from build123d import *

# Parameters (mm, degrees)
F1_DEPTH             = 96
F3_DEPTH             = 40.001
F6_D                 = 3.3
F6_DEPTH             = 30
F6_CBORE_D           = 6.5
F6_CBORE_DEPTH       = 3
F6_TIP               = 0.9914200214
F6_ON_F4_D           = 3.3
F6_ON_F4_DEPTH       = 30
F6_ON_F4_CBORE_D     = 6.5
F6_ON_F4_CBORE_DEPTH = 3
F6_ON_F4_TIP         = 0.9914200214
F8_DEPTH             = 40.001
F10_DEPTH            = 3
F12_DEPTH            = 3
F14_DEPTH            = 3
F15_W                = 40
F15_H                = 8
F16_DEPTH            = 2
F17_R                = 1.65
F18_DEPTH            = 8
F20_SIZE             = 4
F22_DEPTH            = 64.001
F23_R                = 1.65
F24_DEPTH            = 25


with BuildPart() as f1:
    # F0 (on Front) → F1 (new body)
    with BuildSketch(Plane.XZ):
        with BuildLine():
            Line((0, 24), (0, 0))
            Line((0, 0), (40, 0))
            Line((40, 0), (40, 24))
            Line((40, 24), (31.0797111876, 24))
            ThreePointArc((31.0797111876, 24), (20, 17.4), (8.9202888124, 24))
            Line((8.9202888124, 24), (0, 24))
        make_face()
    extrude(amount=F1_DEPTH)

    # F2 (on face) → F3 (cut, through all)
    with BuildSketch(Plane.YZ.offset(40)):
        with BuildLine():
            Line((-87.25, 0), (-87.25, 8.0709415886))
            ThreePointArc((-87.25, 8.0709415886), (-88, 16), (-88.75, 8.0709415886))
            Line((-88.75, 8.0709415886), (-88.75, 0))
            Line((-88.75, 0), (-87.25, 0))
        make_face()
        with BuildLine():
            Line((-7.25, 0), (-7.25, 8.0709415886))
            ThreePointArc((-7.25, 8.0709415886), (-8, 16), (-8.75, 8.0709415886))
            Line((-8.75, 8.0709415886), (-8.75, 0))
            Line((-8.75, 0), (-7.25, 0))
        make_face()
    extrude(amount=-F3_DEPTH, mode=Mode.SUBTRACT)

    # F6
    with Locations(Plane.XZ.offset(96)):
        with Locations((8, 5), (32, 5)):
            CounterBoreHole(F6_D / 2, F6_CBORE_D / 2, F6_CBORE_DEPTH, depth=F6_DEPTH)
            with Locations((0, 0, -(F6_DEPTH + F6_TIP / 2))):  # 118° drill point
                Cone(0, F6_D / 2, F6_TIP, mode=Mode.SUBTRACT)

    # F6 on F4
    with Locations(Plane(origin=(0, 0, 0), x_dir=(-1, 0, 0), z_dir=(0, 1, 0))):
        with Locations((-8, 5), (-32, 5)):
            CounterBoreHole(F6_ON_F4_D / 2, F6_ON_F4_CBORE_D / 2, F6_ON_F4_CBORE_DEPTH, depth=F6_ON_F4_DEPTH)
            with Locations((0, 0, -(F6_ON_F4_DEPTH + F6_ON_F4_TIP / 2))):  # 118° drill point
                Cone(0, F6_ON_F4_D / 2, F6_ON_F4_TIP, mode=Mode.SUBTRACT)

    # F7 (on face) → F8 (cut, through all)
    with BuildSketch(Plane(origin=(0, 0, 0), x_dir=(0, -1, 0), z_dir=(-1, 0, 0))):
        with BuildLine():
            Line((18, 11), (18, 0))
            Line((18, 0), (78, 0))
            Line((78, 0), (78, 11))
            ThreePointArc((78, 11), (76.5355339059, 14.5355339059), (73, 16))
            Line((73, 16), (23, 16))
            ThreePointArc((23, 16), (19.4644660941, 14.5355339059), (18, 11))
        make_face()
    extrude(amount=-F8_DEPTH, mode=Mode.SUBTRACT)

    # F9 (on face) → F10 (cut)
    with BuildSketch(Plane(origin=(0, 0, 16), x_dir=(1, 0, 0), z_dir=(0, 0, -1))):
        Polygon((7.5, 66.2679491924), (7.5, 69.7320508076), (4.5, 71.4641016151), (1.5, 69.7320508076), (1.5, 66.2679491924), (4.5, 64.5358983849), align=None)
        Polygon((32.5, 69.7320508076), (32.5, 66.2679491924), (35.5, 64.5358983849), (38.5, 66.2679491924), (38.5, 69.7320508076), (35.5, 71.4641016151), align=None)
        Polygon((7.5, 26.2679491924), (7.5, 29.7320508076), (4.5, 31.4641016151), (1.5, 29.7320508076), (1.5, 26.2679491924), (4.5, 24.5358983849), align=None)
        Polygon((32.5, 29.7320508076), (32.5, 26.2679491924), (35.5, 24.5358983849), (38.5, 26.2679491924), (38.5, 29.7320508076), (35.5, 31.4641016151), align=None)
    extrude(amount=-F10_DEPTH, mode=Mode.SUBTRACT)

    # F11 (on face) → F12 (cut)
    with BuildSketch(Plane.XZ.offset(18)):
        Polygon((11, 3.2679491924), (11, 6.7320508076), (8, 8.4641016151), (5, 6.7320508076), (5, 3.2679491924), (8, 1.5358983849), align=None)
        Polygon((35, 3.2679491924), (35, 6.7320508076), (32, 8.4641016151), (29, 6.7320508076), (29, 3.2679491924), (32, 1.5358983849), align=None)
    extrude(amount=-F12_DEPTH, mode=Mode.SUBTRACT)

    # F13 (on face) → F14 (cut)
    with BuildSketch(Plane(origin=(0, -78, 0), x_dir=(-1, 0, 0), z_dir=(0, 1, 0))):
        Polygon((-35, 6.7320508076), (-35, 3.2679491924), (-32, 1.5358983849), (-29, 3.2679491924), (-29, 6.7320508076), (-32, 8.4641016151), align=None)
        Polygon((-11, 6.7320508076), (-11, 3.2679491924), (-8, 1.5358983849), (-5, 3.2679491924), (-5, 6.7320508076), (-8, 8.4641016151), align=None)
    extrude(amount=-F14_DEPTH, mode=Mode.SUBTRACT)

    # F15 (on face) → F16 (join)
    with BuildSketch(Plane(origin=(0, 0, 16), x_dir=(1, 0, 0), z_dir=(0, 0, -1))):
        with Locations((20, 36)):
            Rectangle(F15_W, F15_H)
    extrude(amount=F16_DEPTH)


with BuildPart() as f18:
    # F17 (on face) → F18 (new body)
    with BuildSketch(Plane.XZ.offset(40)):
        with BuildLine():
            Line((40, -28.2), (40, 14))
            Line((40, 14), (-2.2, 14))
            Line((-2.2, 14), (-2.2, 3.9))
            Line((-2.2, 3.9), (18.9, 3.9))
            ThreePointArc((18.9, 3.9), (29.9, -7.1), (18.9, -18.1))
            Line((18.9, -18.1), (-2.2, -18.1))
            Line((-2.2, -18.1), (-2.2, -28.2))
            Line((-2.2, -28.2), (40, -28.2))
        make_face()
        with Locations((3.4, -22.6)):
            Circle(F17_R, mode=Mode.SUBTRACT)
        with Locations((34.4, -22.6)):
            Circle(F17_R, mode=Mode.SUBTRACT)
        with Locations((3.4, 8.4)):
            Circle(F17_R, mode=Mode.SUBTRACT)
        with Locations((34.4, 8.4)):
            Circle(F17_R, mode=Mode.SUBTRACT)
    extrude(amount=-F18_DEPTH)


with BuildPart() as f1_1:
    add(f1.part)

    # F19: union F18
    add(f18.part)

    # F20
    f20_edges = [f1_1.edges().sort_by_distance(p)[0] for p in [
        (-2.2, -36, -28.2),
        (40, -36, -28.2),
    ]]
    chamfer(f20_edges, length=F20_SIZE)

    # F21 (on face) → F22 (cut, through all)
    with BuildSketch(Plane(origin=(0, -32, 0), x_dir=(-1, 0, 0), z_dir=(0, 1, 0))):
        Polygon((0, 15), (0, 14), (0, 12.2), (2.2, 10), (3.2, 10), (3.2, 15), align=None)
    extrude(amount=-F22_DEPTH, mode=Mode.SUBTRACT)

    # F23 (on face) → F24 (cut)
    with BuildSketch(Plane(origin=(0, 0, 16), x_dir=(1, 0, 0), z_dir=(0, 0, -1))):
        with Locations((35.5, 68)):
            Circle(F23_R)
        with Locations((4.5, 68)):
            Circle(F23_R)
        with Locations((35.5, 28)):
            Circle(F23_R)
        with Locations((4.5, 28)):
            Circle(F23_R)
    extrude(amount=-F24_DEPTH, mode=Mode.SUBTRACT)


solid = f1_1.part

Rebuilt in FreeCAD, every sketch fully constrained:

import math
import FreeCAD as App
import Part
import Sketcher
from FreeCAD import Vector
Q = App.Units.Quantity


def edges_at(feature, points):
    """Names of the edges that pass closest to the given points."""
    edges = feature.Shape.Edges
    near = lambda p: min(range(len(edges)), key=lambda i: edges[i].distToShape(Part.Vertex(*p))[0])
    return sorted({f"Edge{near(p) + 1}" for p in points})


def add_polygon(sketch, points):
    """Adds a closed chain of lines whose ends are joined by coincident constraints."""
    first, n = sketch.GeometryCount, len(points)
    for a, b in zip(points, points[1:] + points[:1]):
        sketch.addGeometry(Part.LineSegment(App.Vector(*a, 0), App.Vector(*b, 0)), False)
    for i in range(n):
        sketch.addConstraint(Sketcher.Constraint("Coincident", first + i, 2, first + (i + 1) % n, 1))

doc = App.newDocument("Part")
params = doc.addObject("Spreadsheet::Sheet", "Params")
for row, (alias, value) in enumerate([
    ("sketch1_radius", "12.6 mm"),
    ("sketch1_width", "40 mm"),
    ("sketch1_height", "24 mm"),
    ("pad1_length", "96 mm"),
    ("sketch2_radius", "4 mm"),
    ("sketch2_width", "1.5 mm"),
    ("sketch3_diameter", "3.3 mm"),
    ("hole_diameter", "3.3 mm"),
    ("hole_depth", "30 mm"),
    ("hole_cbore_diameter", "6.5 mm"),
    ("hole_cbore_depth", "3 mm"),
    ("sketch4_diameter", "3.3 mm"),
    ("hole2_diameter", "3.3 mm"),
    ("hole2_depth", "30 mm"),
    ("hole2_cbore_diameter", "6.5 mm"),
    ("hole2_cbore_depth", "3 mm"),
    ("sketch5_radius", "5 mm"),
    ("sketch5_width", "60 mm"),
    ("sketch5_height", "11 mm"),
    ("pocket3_length", "3 mm"),
    ("pocket4_length", "3 mm"),
    ("pocket5_length", "3 mm"),
    ("sketch9_width", "40 mm"),
    ("sketch9_height", "8 mm"),
    ("pad2_length", "2 mm"),
    ("sketch10_radius", "11 mm"),
    ("sketch10_diameter", "3.3 mm"),
    ("sketch10_width", "42.2 mm"),
    ("sketch10_width2", "21.1 mm"),
    ("pad3_length", "8 mm"),
    ("chamfer_size", "4 mm"),
    ("sketch11_width", "1 mm"),
    ("sketch11_height", "5 mm"),
    ("sketch11_width2", "3.2 mm"),
    ("sketch12_diameter", "3.3 mm"),
    ("pocket7_length", "25 mm"),
], start=1):
    params.set(f"A{row}", alias)
    params.set(f"B{row}", "=" + value)
    params.setAlias(f"B{row}", alias)

body = doc.addObject("PartDesign::Body", "Body")

# Sketch on XZ plane
sketch1 = body.newObject("Sketcher::SketchObject", "Sketch")
sketch1.AttachmentSupport = (doc.getObject("XZ_Plane"), [""])
sketch1.MapMode = "FlatFace"
sketch1.addGeometry(Part.LineSegment(Vector(0, 24, 0), Vector(0, 0, 0)), False)
sketch1.addGeometry(Part.LineSegment(Vector(0, 0, 0), Vector(40, 0, 0)), False)
sketch1.addGeometry(Part.LineSegment(Vector(40, 0, 0), Vector(40, 24, 0)), False)
sketch1.addGeometry(Part.LineSegment(Vector(40, 24, 0), Vector(31, 24, 0)), False)
sketch1.addGeometry(Part.ArcOfCircle(Part.Circle(Vector(20, 30, 0), Vector(0, 0, 1), 13), math.radians(-152), math.radians(-28)), False)
sketch1.addGeometry(Part.LineSegment(Vector(9, 24, 0), Vector(0, 24, 0)), False)
sketch1.addConstraint(Sketcher.Constraint("Coincident", 0, 2, 1, 1))
sketch1.addConstraint(Sketcher.Constraint("Coincident", 1, 2, 2, 1))
sketch1.addConstraint(Sketcher.Constraint("Coincident", 2, 2, 3, 1))
sketch1.addConstraint(Sketcher.Constraint("Coincident", 3, 2, 4, 2))
sketch1.addConstraint(Sketcher.Constraint("Coincident", 4, 1, 5, 1))
sketch1.addConstraint(Sketcher.Constraint("Coincident", 5, 2, 0, 1))
sketch1.addConstraint(Sketcher.Constraint("Vertical", 0))
sketch1.addConstraint(Sketcher.Constraint("Horizontal", 1))
sketch1.addConstraint(Sketcher.Constraint("Vertical", 2))
sketch1.addConstraint(Sketcher.Constraint("Horizontal", 3))
sketch1.addConstraint(Sketcher.Constraint("Horizontal", 5))
sketch1.addConstraint(Sketcher.Constraint("Coincident", 0, 2, -1, 1))
sketch1.addConstraint(Sketcher.Constraint("Horizontal", 3, 2, 4, 1))
sketch1.addConstraint(Sketcher.Constraint("Equal", 3, 5))
sketch1.addConstraint(Sketcher.Constraint("Radius", 4, Q("12.6 mm")))
sketch1.addConstraint(Sketcher.Constraint("DistanceX", 1, 1, 1, 2, Q("40 mm")))
sketch1.addConstraint(Sketcher.Constraint("DistanceY", 0, 2, 0, 1, Q("24 mm")))
sketch1.addConstraint(Sketcher.Constraint("DistanceY", -1, 1, 4, 3, Q("30 mm")))
sketch1.setExpression("Constraints[14]", "Params.sketch1_radius")
sketch1.setExpression("Constraints[15]", "Params.sketch1_width")
sketch1.setExpression("Constraints[16]", "Params.sketch1_height")
pad1 = body.newObject("PartDesign::Pad", "Pad")
pad1.Profile = sketch1
pad1.setExpression("Length", "Params.pad1_length")

# Sketch on YZ plane
sketch2 = body.newObject("Sketcher::SketchObject", "Sketch001")
sketch2.AttachmentSupport = (doc.getObject("YZ_Plane"), [""])
sketch2.MapMode = "FlatFace"
sketch2.AttachmentOffset = App.Placement(Vector(0, 0, 40), App.Rotation())
sketch2.addGeometry(Part.LineSegment(Vector(-87.2, 0, 0), Vector(-87.2, 8.1, 0)), False)
sketch2.addGeometry(Part.ArcOfCircle(Part.Circle(Vector(-88, 12, 0), Vector(0, 0, 1), 4), math.radians(-79), math.radians(259)), False)
sketch2.addGeometry(Part.LineSegment(Vector(-88.8, 8.1, 0), Vector(-88.8, 0, 0)), False)
sketch2.addGeometry(Part.LineSegment(Vector(-88.8, 0, 0), Vector(-87.2, 0, 0)), False)
sketch2.addGeometry(Part.LineSegment(Vector(-7.2, 0, 0), Vector(-7.2, 8.1, 0)), False)
sketch2.addGeometry(Part.ArcOfCircle(Part.Circle(Vector(-8, 12, 0), Vector(0, 0, 1), 4), math.radians(-79), math.radians(259)), False)
sketch2.addGeometry(Part.LineSegment(Vector(-8.8, 8.1, 0), Vector(-8.8, 0, 0)), False)
sketch2.addGeometry(Part.LineSegment(Vector(-8.8, 0, 0), Vector(-7.2, 0, 0)), False)
sketch2.addConstraint(Sketcher.Constraint("Coincident", 0, 2, 1, 1))
sketch2.addConstraint(Sketcher.Constraint("Coincident", 1, 2, 2, 1))
sketch2.addConstraint(Sketcher.Constraint("Coincident", 2, 2, 3, 1))
sketch2.addConstraint(Sketcher.Constraint("Coincident", 3, 2, 0, 1))
sketch2.addConstraint(Sketcher.Constraint("Coincident", 4, 2, 5, 1))
sketch2.addConstraint(Sketcher.Constraint("Coincident", 5, 2, 6, 1))
sketch2.addConstraint(Sketcher.Constraint("Coincident", 6, 2, 7, 1))
sketch2.addConstraint(Sketcher.Constraint("Coincident", 7, 2, 4, 1))
sketch2.addConstraint(Sketcher.Constraint("Vertical", 0))
sketch2.addConstraint(Sketcher.Constraint("Vertical", 2))
sketch2.addConstraint(Sketcher.Constraint("Horizontal", 3))
sketch2.addConstraint(Sketcher.Constraint("Vertical", 4))
sketch2.addConstraint(Sketcher.Constraint("Vertical", 6))
sketch2.addConstraint(Sketcher.Constraint("Horizontal", 7))
sketch2.addConstraint(Sketcher.Constraint("Equal", 1, 5))
sketch2.addConstraint(Sketcher.Constraint("PointOnObject", 2, 2, -1))
sketch2.addConstraint(Sketcher.Constraint("PointOnObject", 6, 2, -1))
sketch2.addConstraint(Sketcher.Constraint("Horizontal", 1, 3, 5, 3))
sketch2.addConstraint(Sketcher.Constraint("Horizontal", 0, 2, 1, 2))
sketch2.addConstraint(Sketcher.Constraint("Horizontal", 1, 2, 4, 2))
sketch2.addConstraint(Sketcher.Constraint("Horizontal", 4, 2, 5, 2))
sketch2.addConstraint(Sketcher.Constraint("Radius", 1, Q("4 mm")))
sketch2.addConstraint(Sketcher.Constraint("DistanceX", 3, 1, 3, 2, Q("1.5 mm")))
sketch2.addConstraint(Sketcher.Constraint("DistanceX", 1, 3, -1, 1, Q("88 mm")))
sketch2.addConstraint(Sketcher.Constraint("DistanceY", -1, 1, 1, 3, Q("12 mm")))
sketch2.addConstraint(Sketcher.Constraint("DistanceX", 5, 3, -1, 1, Q("8 mm")))
sketch2.setExpression("Constraints[21]", "Params.sketch2_radius")
sketch2.setExpression("Constraints[22]", "Params.sketch2_width")
pocket1 = body.newObject("PartDesign::Pocket", "Pocket")
pocket1.Profile = sketch2
pocket1.Type = "ThroughAll"

# Sketch on XZ plane
sketch3 = body.newObject("Sketcher::SketchObject", "Sketch002")
sketch3.AttachmentSupport = (doc.getObject("XZ_Plane"), [""])
sketch3.MapMode = "FlatFace"
sketch3.AttachmentOffset = App.Placement(Vector(0, 0, 96), App.Rotation())
sketch3.addGeometry(Part.Circle(Vector(8, 5, 0), Vector(0, 0, 1), 1.6), False)
sketch3.addGeometry(Part.Circle(Vector(32, 5, 0), Vector(0, 0, 1), 1.6), False)
sketch3.addConstraint(Sketcher.Constraint("Equal", 0, 1))
sketch3.addConstraint(Sketcher.Constraint("Horizontal", 0, 3, 1, 3))
sketch3.addConstraint(Sketcher.Constraint("Diameter", 0, Q("3.3 mm")))
sketch3.addConstraint(Sketcher.Constraint("DistanceX", -1, 1, 0, 3, Q("8 mm")))
sketch3.addConstraint(Sketcher.Constraint("DistanceY", -1, 1, 0, 3, Q("5 mm")))
sketch3.addConstraint(Sketcher.Constraint("DistanceX", -1, 1, 1, 3, Q("32 mm")))
sketch3.setExpression("Constraints[2]", "Params.sketch3_diameter")
doc.recompute()
hole = body.newObject("PartDesign::Hole", "Hole")
hole.Profile = sketch3
hole.ThreadType = "None"
hole.setExpression("Diameter", "Params.hole_diameter")
hole.DepthType = "Dimension"
hole.setExpression("Depth", "Params.hole_depth")
hole.DrillPoint = "Angled"
hole.DrillPointAngle = 118
hole.HoleCutType = "Counterbore"
hole.setExpression("HoleCutDiameter", "Params.hole_cbore_diameter")
hole.setExpression("HoleCutDepth", "Params.hole_cbore_depth")

# Sketch on XZ plane
sketch4 = body.newObject("Sketcher::SketchObject", "Sketch003")
sketch4.AttachmentSupport = (doc.getObject("XZ_Plane"), [""])
sketch4.MapMode = "FlatFace"
sketch4.addGeometry(Part.Circle(Vector(8, 5, 0), Vector(0, 0, 1), 1.6), False)
sketch4.addGeometry(Part.Circle(Vector(32, 5, 0), Vector(0, 0, 1), 1.6), False)
sketch4.addConstraint(Sketcher.Constraint("Equal", 0, 1))
sketch4.addConstraint(Sketcher.Constraint("Horizontal", 0, 3, 1, 3))
sketch4.addConstraint(Sketcher.Constraint("Diameter", 0, Q("3.3 mm")))
sketch4.addConstraint(Sketcher.Constraint("DistanceX", -1, 1, 0, 3, Q("8 mm")))
sketch4.addConstraint(Sketcher.Constraint("DistanceY", -1, 1, 0, 3, Q("5 mm")))
sketch4.addConstraint(Sketcher.Constraint("DistanceX", -1, 1, 1, 3, Q("32 mm")))
sketch4.setExpression("Constraints[2]", "Params.sketch4_diameter")
doc.recompute()
hole2 = body.newObject("PartDesign::Hole", "Hole001")
hole2.Profile = sketch4
hole2.ThreadType = "None"
hole2.setExpression("Diameter", "Params.hole2_diameter")
hole2.DepthType = "Dimension"
hole2.setExpression("Depth", "Params.hole2_depth")
hole2.DrillPoint = "Angled"
hole2.DrillPointAngle = 118
hole2.HoleCutType = "Counterbore"
hole2.setExpression("HoleCutDiameter", "Params.hole2_cbore_diameter")
hole2.setExpression("HoleCutDepth", "Params.hole2_cbore_depth")
hole2.Reversed = True

# Sketch on YZ plane
sketch5 = body.newObject("Sketcher::SketchObject", "Sketch004")
sketch5.AttachmentSupport = (doc.getObject("YZ_Plane"), [""])
sketch5.MapMode = "FlatFace"
sketch5.addGeometry(Part.LineSegment(Vector(-18, 11, 0), Vector(-18, 0, 0)), False)
sketch5.addGeometry(Part.LineSegment(Vector(-18, 0, 0), Vector(-78, 0, 0)), False)
sketch5.addGeometry(Part.LineSegment(Vector(-78, 0, 0), Vector(-78, 11, 0)), False)
sketch5.addGeometry(Part.ArcOfCircle(Part.Circle(Vector(-73, 11, 0), Vector(0, 0, 1), 5), math.radians(90), math.radians(180)), False)
sketch5.addGeometry(Part.LineSegment(Vector(-73, 16, 0), Vector(-23, 16, 0)), False)
sketch5.addGeometry(Part.ArcOfCircle(Part.Circle(Vector(-23, 11, 0), Vector(0, 0, 1), 5), math.radians(0), math.radians(90)), False)
sketch5.addConstraint(Sketcher.Constraint("Coincident", 0, 2, 1, 1))
sketch5.addConstraint(Sketcher.Constraint("Coincident", 1, 2, 2, 1))
sketch5.addConstraint(Sketcher.Constraint("Tangent", 2, 2, 3, 2))
sketch5.addConstraint(Sketcher.Constraint("Tangent", 3, 1, 4, 1))
sketch5.addConstraint(Sketcher.Constraint("Tangent", 4, 2, 5, 2))
sketch5.addConstraint(Sketcher.Constraint("Tangent", 5, 1, 0, 1))
sketch5.addConstraint(Sketcher.Constraint("Vertical", 0))
sketch5.addConstraint(Sketcher.Constraint("Horizontal", 1))
sketch5.addConstraint(Sketcher.Constraint("Vertical", 2))
sketch5.addConstraint(Sketcher.Constraint("Horizontal", 4))
sketch5.addConstraint(Sketcher.Constraint("Equal", 3, 5))
sketch5.addConstraint(Sketcher.Constraint("PointOnObject", 0, 2, -1))
sketch5.addConstraint(Sketcher.Constraint("Radius", 3, Q("5 mm")))
sketch5.addConstraint(Sketcher.Constraint("DistanceX", 1, 2, 1, 1, Q("60 mm")))
sketch5.addConstraint(Sketcher.Constraint("DistanceY", 0, 2, 0, 1, Q("11 mm")))
sketch5.addConstraint(Sketcher.Constraint("DistanceX", 3, 3, -1, 1, Q("73 mm")))
sketch5.setExpression("Constraints[12]", "Params.sketch5_radius")
sketch5.setExpression("Constraints[13]", "Params.sketch5_width")
sketch5.setExpression("Constraints[14]", "Params.sketch5_height")
pocket2 = body.newObject("PartDesign::Pocket", "Pocket001")
pocket2.Profile = sketch5
pocket2.Type = "ThroughAll"
pocket2.Reversed = True

# Sketch on XY plane
sketch6 = body.newObject("Sketcher::SketchObject", "Sketch005")
sketch6.AttachmentSupport = (doc.getObject("XY_Plane"), [""])
sketch6.MapMode = "FlatFace"
sketch6.AttachmentOffset = App.Placement(Vector(0, 0, 16), App.Rotation())
add_polygon(sketch6, [(7.5, -66.3), (7.5, -69.7), (4.5, -71.5), (1.5, -69.7), (1.5, -66.3), (4.5, -64.5)])  # lines 0-5
add_polygon(sketch6, [(32.5, -69.7), (32.5, -66.3), (35.5, -64.5), (38.5, -66.3), (38.5, -69.7), (35.5, -71.5)])  # lines 6-11
add_polygon(sketch6, [(7.5, -26.3), (7.5, -29.7), (4.5, -31.5), (1.5, -29.7), (1.5, -26.3), (4.5, -24.5)])  # lines 12-17
add_polygon(sketch6, [(32.5, -29.7), (32.5, -26.3), (35.5, -24.5), (38.5, -26.3), (38.5, -29.7), (35.5, -31.5)])  # lines 18-23
sketch6.addConstraint(Sketcher.Constraint("Vertical", 0))
sketch6.addConstraint(Sketcher.Constraint("Vertical", 3))
sketch6.addConstraint(Sketcher.Constraint("Vertical", 6))
sketch6.addConstraint(Sketcher.Constraint("Vertical", 9))
sketch6.addConstraint(Sketcher.Constraint("Vertical", 12))
sketch6.addConstraint(Sketcher.Constraint("Vertical", 15))
sketch6.addConstraint(Sketcher.Constraint("Vertical", 18))
sketch6.addConstraint(Sketcher.Constraint("Vertical", 21))
sketch6.addConstraint(Sketcher.Constraint("Parallel", 1, 4))
sketch6.addConstraint(Sketcher.Constraint("Parallel", 2, 5))
sketch6.addConstraint(Sketcher.Constraint("Parallel", 4, 7))
sketch6.addConstraint(Sketcher.Constraint("Parallel", 5, 8))
sketch6.addConstraint(Sketcher.Constraint("Parallel", 7, 10))
sketch6.addConstraint(Sketcher.Constraint("Parallel", 8, 11))
sketch6.addConstraint(Sketcher.Constraint("Parallel", 10, 13))
sketch6.addConstraint(Sketcher.Constraint("Parallel", 11, 14))
sketch6.addConstraint(Sketcher.Constraint("Parallel", 13, 16))
sketch6.addConstraint(Sketcher.Constraint("Parallel", 14, 17))
sketch6.addConstraint(Sketcher.Constraint("Parallel", 16, 19))
sketch6.addConstraint(Sketcher.Constraint("Parallel", 17, 20))
sketch6.addConstraint(Sketcher.Constraint("Parallel", 19, 22))
sketch6.addConstraint(Sketcher.Constraint("Parallel", 20, 23))
sketch6.addConstraint(Sketcher.Constraint("Horizontal", 0, 2, 2, 2))
sketch6.addConstraint(Sketcher.Constraint("Horizontal", 3, 2, 5, 2))
sketch6.addConstraint(Sketcher.Constraint("Horizontal", 5, 2, 6, 2))
sketch6.addConstraint(Sketcher.Constraint("Horizontal", 4, 2, 7, 2))
sketch6.addConstraint(Sketcher.Constraint("Horizontal", 6, 2, 8, 2))
sketch6.addConstraint(Sketcher.Constraint("Horizontal", 2, 2, 9, 2))
sketch6.addConstraint(Sketcher.Constraint("Horizontal", 1, 2, 10, 2))
sketch6.addConstraint(Sketcher.Constraint("Horizontal", 12, 2, 14, 2))
sketch6.addConstraint(Sketcher.Constraint("Horizontal", 15, 2, 17, 2))
sketch6.addConstraint(Sketcher.Constraint("Horizontal", 17, 2, 18, 2))
sketch6.addConstraint(Sketcher.Constraint("Horizontal", 16, 2, 19, 2))
sketch6.addConstraint(Sketcher.Constraint("Horizontal", 18, 2, 20, 2))
sketch6.addConstraint(Sketcher.Constraint("Horizontal", 14, 2, 21, 2))
sketch6.addConstraint(Sketcher.Constraint("Horizontal", 13, 2, 22, 2))
sketch6.addConstraint(Sketcher.Constraint("Vertical", 1, 2, 4, 2))
sketch6.addConstraint(Sketcher.Constraint("Vertical", 5, 2, 12, 2))
sketch6.addConstraint(Sketcher.Constraint("Vertical", 4, 2, 13, 2))
sketch6.addConstraint(Sketcher.Constraint("Vertical", 11, 2, 18, 2))
sketch6.addConstraint(Sketcher.Constraint("Equal", 9, 12))
sketch6.addConstraint(Sketcher.Constraint("Angle", 1, Q("-150 deg")))
sketch6.addConstraint(Sketcher.Constraint("DistanceX", 1, 2, 0, 2, Q("3 mm")))
sketch6.addConstraint(Sketcher.Constraint("DistanceX", 5, 2, 6, 2, Q("25 mm")))
sketch6.addConstraint(Sketcher.Constraint("DistanceY", 0, 2, 12, 2, Q("40 mm")))
sketch6.addConstraint(Sketcher.Constraint("DistanceX", -1, 1, 0, 2, Q("7.5 mm")))
sketch6.addConstraint(Sketcher.Constraint("DistanceY", 0, 2, 0, 1, Q("3.464102 mm")))
sketch6.addConstraint(Sketcher.Constraint("DistanceY", 1, 2, -1, 1, Q("71.464102 mm")))
pocket3 = body.newObject("PartDesign::Pocket", "Pocket002")
pocket3.Profile = sketch6
pocket3.setExpression("Length", "Params.pocket3_length")
pocket3.Reversed = True

# Sketch on XZ plane
sketch7 = body.newObject("Sketcher::SketchObject", "Sketch006")
sketch7.AttachmentSupport = (doc.getObject("XZ_Plane"), [""])
sketch7.MapMode = "FlatFace"
sketch7.AttachmentOffset = App.Placement(Vector(0, 0, 18), App.Rotation())
add_polygon(sketch7, [(11, 3.3), (11, 6.7), (8, 8.5), (5, 6.7), (5, 3.3), (8, 1.5)])  # lines 0-5
add_polygon(sketch7, [(35, 3.3), (35, 6.7), (32, 8.5), (29, 6.7), (29, 3.3), (32, 1.5)])  # lines 6-11
sketch7.addConstraint(Sketcher.Constraint("Vertical", 0))
sketch7.addConstraint(Sketcher.Constraint("Vertical", 3))
sketch7.addConstraint(Sketcher.Constraint("Vertical", 6))
sketch7.addConstraint(Sketcher.Constraint("Vertical", 9))
sketch7.addConstraint(Sketcher.Constraint("Parallel", 1, 4))
sketch7.addConstraint(Sketcher.Constraint("Parallel", 2, 5))
sketch7.addConstraint(Sketcher.Constraint("Parallel", 4, 7))
sketch7.addConstraint(Sketcher.Constraint("Parallel", 5, 8))
sketch7.addConstraint(Sketcher.Constraint("Parallel", 7, 10))
sketch7.addConstraint(Sketcher.Constraint("Parallel", 8, 11))
sketch7.addConstraint(Sketcher.Constraint("Horizontal", 0, 2, 2, 2))
sketch7.addConstraint(Sketcher.Constraint("Horizontal", 3, 2, 5, 2))
sketch7.addConstraint(Sketcher.Constraint("Horizontal", 2, 2, 6, 2))
sketch7.addConstraint(Sketcher.Constraint("Horizontal", 1, 2, 7, 2))
sketch7.addConstraint(Sketcher.Constraint("Horizontal", 6, 2, 8, 2))
sketch7.addConstraint(Sketcher.Constraint("Horizontal", 5, 2, 9, 2))
sketch7.addConstraint(Sketcher.Constraint("Horizontal", 4, 2, 10, 2))
sketch7.addConstraint(Sketcher.Constraint("Vertical", 1, 2, 4, 2))
sketch7.addConstraint(Sketcher.Constraint("Angle", 1, Q("150 deg")))
sketch7.addConstraint(Sketcher.Constraint("DistanceX", -1, 1, 0, 2, Q("11 mm")))
sketch7.addConstraint(Sketcher.Constraint("DistanceX", -1, 1, 1, 2, Q("8 mm")))
sketch7.addConstraint(Sketcher.Constraint("DistanceX", -1, 1, 6, 2, Q("35 mm")))
sketch7.addConstraint(Sketcher.Constraint("DistanceY", 0, 1, 0, 2, Q("3.464102 mm")))
sketch7.addConstraint(Sketcher.Constraint("DistanceY", -1, 1, 1, 2, Q("8.464102 mm")))
pocket4 = body.newObject("PartDesign::Pocket", "Pocket003")
pocket4.Profile = sketch7
pocket4.setExpression("Length", "Params.pocket4_length")

# Sketch on XZ plane
sketch8 = body.newObject("Sketcher::SketchObject", "Sketch007")
sketch8.AttachmentSupport = (doc.getObject("XZ_Plane"), [""])
sketch8.MapMode = "FlatFace"
sketch8.AttachmentOffset = App.Placement(Vector(0, 0, 78), App.Rotation())
add_polygon(sketch8, [(35, 6.7), (35, 3.3), (32, 1.5), (29, 3.3), (29, 6.7), (32, 8.5)])  # lines 0-5
add_polygon(sketch8, [(11, 6.7), (11, 3.3), (8, 1.5), (5, 3.3), (5, 6.7), (8, 8.5)])  # lines 6-11
sketch8.addConstraint(Sketcher.Constraint("Vertical", 0))
sketch8.addConstraint(Sketcher.Constraint("Vertical", 3))
sketch8.addConstraint(Sketcher.Constraint("Vertical", 6))
sketch8.addConstraint(Sketcher.Constraint("Vertical", 9))
sketch8.addConstraint(Sketcher.Constraint("Parallel", 1, 4))
sketch8.addConstraint(Sketcher.Constraint("Parallel", 2, 5))
sketch8.addConstraint(Sketcher.Constraint("Parallel", 4, 7))
sketch8.addConstraint(Sketcher.Constraint("Parallel", 5, 8))
sketch8.addConstraint(Sketcher.Constraint("Parallel", 7, 10))
sketch8.addConstraint(Sketcher.Constraint("Parallel", 8, 11))
sketch8.addConstraint(Sketcher.Constraint("Horizontal", 0, 2, 2, 2))
sketch8.addConstraint(Sketcher.Constraint("Horizontal", 3, 2, 5, 2))
sketch8.addConstraint(Sketcher.Constraint("Horizontal", 2, 2, 6, 2))
sketch8.addConstraint(Sketcher.Constraint("Horizontal", 1, 2, 7, 2))
sketch8.addConstraint(Sketcher.Constraint("Horizontal", 6, 2, 8, 2))
sketch8.addConstraint(Sketcher.Constraint("Horizontal", 5, 2, 9, 2))
sketch8.addConstraint(Sketcher.Constraint("Horizontal", 4, 2, 10, 2))
sketch8.addConstraint(Sketcher.Constraint("Vertical", 1, 2, 4, 2))
sketch8.addConstraint(Sketcher.Constraint("Angle", 1, Q("-150 deg")))
sketch8.addConstraint(Sketcher.Constraint("DistanceX", -1, 1, 0, 2, Q("35 mm")))
sketch8.addConstraint(Sketcher.Constraint("DistanceX", -1, 1, 1, 2, Q("32 mm")))
sketch8.addConstraint(Sketcher.Constraint("DistanceX", -1, 1, 6, 2, Q("11 mm")))
sketch8.addConstraint(Sketcher.Constraint("DistanceY", 0, 2, 0, 1, Q("3.464102 mm")))
sketch8.addConstraint(Sketcher.Constraint("DistanceY", -1, 1, 1, 2, Q("1.535898 mm")))
pocket5 = body.newObject("PartDesign::Pocket", "Pocket004")
pocket5.Profile = sketch8
pocket5.setExpression("Length", "Params.pocket5_length")
pocket5.Reversed = True

# Sketch on XY plane
sketch9 = body.newObject("Sketcher::SketchObject", "Sketch008")
sketch9.AttachmentSupport = (doc.getObject("XY_Plane"), [""])
sketch9.MapMode = "FlatFace"
sketch9.AttachmentOffset = App.Placement(Vector(0, 0, 16), App.Rotation())
add_polygon(sketch9, [(0, -40), (0, -32), (40, -32), (40, -40)])  # lines 0-3
sketch9.addConstraint(Sketcher.Constraint("Vertical", 0))
sketch9.addConstraint(Sketcher.Constraint("Horizontal", 1))
sketch9.addConstraint(Sketcher.Constraint("Vertical", 2))
sketch9.addConstraint(Sketcher.Constraint("Horizontal", 3))
sketch9.addConstraint(Sketcher.Constraint("PointOnObject", 0, 2, -2))
sketch9.addConstraint(Sketcher.Constraint("DistanceX", 1, 1, 1, 2, Q("40 mm")))
sketch9.addConstraint(Sketcher.Constraint("DistanceY", 0, 1, 0, 2, Q("8 mm")))
sketch9.addConstraint(Sketcher.Constraint("DistanceY", 0, 2, -1, 1, Q("32 mm")))
sketch9.setExpression("Constraints[9]", "Params.sketch9_width")
sketch9.setExpression("Constraints[10]", "Params.sketch9_height")
pad2 = body.newObject("PartDesign::Pad", "Pad001")
pad2.Profile = sketch9
pad2.setExpression("Length", "Params.pad2_length")
pad2.Reversed = True
body2 = doc.addObject("PartDesign::Body", "Body001")

# Sketch on XZ plane
sketch10 = body2.newObject("Sketcher::SketchObject", "Sketch009")
sketch10.AttachmentSupport = (doc.getObject("XZ_Plane001"), [""])
sketch10.MapMode = "FlatFace"
sketch10.AttachmentOffset = App.Placement(Vector(0, 0, 40), App.Rotation())
sketch10.addGeometry(Part.LineSegment(Vector(40, -28.2, 0), Vector(40, 14, 0)), False)
sketch10.addGeometry(Part.LineSegment(Vector(40, 14, 0), Vector(-2.2, 14, 0)), False)
sketch10.addGeometry(Part.LineSegment(Vector(-2.2, 14, 0), Vector(-2.2, 3.9, 0)), False)
sketch10.addGeometry(Part.LineSegment(Vector(-2.2, 3.9, 0), Vector(18.9, 3.9, 0)), False)
sketch10.addGeometry(Part.ArcOfCircle(Part.Circle(Vector(18.9, -7.1, 0), Vector(0, 0, 1), 11), math.radians(-90), math.radians(90)), False)
sketch10.addGeometry(Part.LineSegment(Vector(18.9, -18.1, 0), Vector(-2.2, -18.1, 0)), False)
sketch10.addGeometry(Part.LineSegment(Vector(-2.2, -18.1, 0), Vector(-2.2, -28.2, 0)), False)
sketch10.addGeometry(Part.LineSegment(Vector(-2.2, -28.2, 0), Vector(40, -28.2, 0)), False)
sketch10.addGeometry(Part.Circle(Vector(3.4, -22.6, 0), Vector(0, 0, 1), 1.6), False)
sketch10.addGeometry(Part.Circle(Vector(34.4, -22.6, 0), Vector(0, 0, 1), 1.6), False)
sketch10.addGeometry(Part.Circle(Vector(3.4, 8.4, 0), Vector(0, 0, 1), 1.6), False)
sketch10.addGeometry(Part.Circle(Vector(34.4, 8.4, 0), Vector(0, 0, 1), 1.6), False)
sketch10.addConstraint(Sketcher.Constraint("Coincident", 0, 2, 1, 1))
sketch10.addConstraint(Sketcher.Constraint("Coincident", 1, 2, 2, 1))
sketch10.addConstraint(Sketcher.Constraint("Coincident", 2, 2, 3, 1))
sketch10.addConstraint(Sketcher.Constraint("Tangent", 3, 2, 4, 2))
sketch10.addConstraint(Sketcher.Constraint("Tangent", 4, 1, 5, 1))
sketch10.addConstraint(Sketcher.Constraint("Coincident", 5, 2, 6, 1))
sketch10.addConstraint(Sketcher.Constraint("Coincident", 6, 2, 7, 1))
sketch10.addConstraint(Sketcher.Constraint("Coincident", 7, 2, 0, 1))
sketch10.addConstraint(Sketcher.Constraint("Vertical", 0))
sketch10.addConstraint(Sketcher.Constraint("Horizontal", 1))
sketch10.addConstraint(Sketcher.Constraint("Vertical", 2))
sketch10.addConstraint(Sketcher.Constraint("Horizontal", 3))
sketch10.addConstraint(Sketcher.Constraint("Horizontal", 5))
sketch10.addConstraint(Sketcher.Constraint("Vertical", 6))
sketch10.addConstraint(Sketcher.Constraint("Horizontal", 7))
sketch10.addConstraint(Sketcher.Constraint("Equal", 8, 9))
sketch10.addConstraint(Sketcher.Constraint("Equal", 9, 10))
sketch10.addConstraint(Sketcher.Constraint("Equal", 10, 11))
sketch10.addConstraint(Sketcher.Constraint("Horizontal", 8, 3, 9, 3))
sketch10.addConstraint(Sketcher.Constraint("Horizontal", 10, 3, 11, 3))
sketch10.addConstraint(Sketcher.Constraint("Vertical", 8, 3, 10, 3))
sketch10.addConstraint(Sketcher.Constraint("Vertical", 9, 3, 11, 3))
sketch10.addConstraint(Sketcher.Constraint("Vertical", 2, 2, 5, 2))
sketch10.addConstraint(Sketcher.Constraint("Equal", 7, 0))
sketch10.addConstraint(Sketcher.Constraint("Equal", 2, 6))
sketch10.addConstraint(Sketcher.Constraint("Radius", 4, Q("11 mm")))
sketch10.addConstraint(Sketcher.Constraint("Diameter", 8, Q("3.3 mm")))
sketch10.addConstraint(Sketcher.Constraint("DistanceX", 1, 2, 1, 1, Q("42.2 mm")))
sketch10.addConstraint(Sketcher.Constraint("DistanceX", 3, 1, 3, 2, Q("21.1 mm")))
sketch10.addConstraint(Sketcher.Constraint("DistanceX", -1, 1, 0, 2, Q("40 mm")))
sketch10.addConstraint(Sketcher.Constraint("DistanceY", -1, 1, 0, 2, Q("14 mm")))
sketch10.addConstraint(Sketcher.Constraint("DistanceX", 8, 3, 9, 3, Q("31 mm")))
sketch10.addConstraint(Sketcher.Constraint("DistanceY", 8, 3, 10, 3, Q("31 mm")))
sketch10.addConstraint(Sketcher.Constraint("DistanceX", -1, 1, 8, 3, Q("3.4 mm")))
sketch10.addConstraint(Sketcher.Constraint("DistanceY", 8, 3, -1, 1, Q("22.6 mm")))
sketch10.setExpression("Constraints[25]", "Params.sketch10_radius")
sketch10.setExpression("Constraints[26]", "Params.sketch10_diameter")
sketch10.setExpression("Constraints[27]", "Params.sketch10_width")
sketch10.setExpression("Constraints[28]", "Params.sketch10_width2")
pad3 = body2.newObject("PartDesign::Pad", "Pad002")
pad3.Profile = sketch10
pad3.setExpression("Length", "Params.pad3_length")
pad3.Reversed = True
doc.recompute()

boolean = body.newObject("PartDesign::Boolean", "Boolean")
boolean.Type = "Fuse"
boolean.addObjects([body2])
doc.recompute()

chamfer = body.newObject("PartDesign::Chamfer", "Chamfer")
chamfer.Base = (boolean, edges_at(boolean, [(-2.2, -36, -28.2), (40, -36, -28.2)]))
chamfer.setExpression("Size", "Params.chamfer_size")

# Sketch on XZ plane
sketch11 = body.newObject("Sketcher::SketchObject", "Sketch010")
sketch11.AttachmentSupport = (doc.getObject("XZ_Plane"), [""])
sketch11.MapMode = "FlatFace"
sketch11.AttachmentOffset = App.Placement(Vector(0, 0, 32), App.Rotation())
add_polygon(sketch11, [(0, 15), (0, 12.2), (-2.2, 10), (-3.2, 10), (-3.2, 15)])  # lines 0-4
sketch11.addConstraint(Sketcher.Constraint("Vertical", 0))
sketch11.addConstraint(Sketcher.Constraint("Horizontal", 2))
sketch11.addConstraint(Sketcher.Constraint("Vertical", 3))
sketch11.addConstraint(Sketcher.Constraint("Horizontal", 4))
sketch11.addConstraint(Sketcher.Constraint("PointOnObject", 0, 2, -2))
sketch11.addConstraint(Sketcher.Constraint("DistanceX", 2, 2, 2, 1, Q("1 mm")))
sketch11.addConstraint(Sketcher.Constraint("DistanceY", 3, 1, 3, 2, Q("5 mm")))
sketch11.addConstraint(Sketcher.Constraint("Angle", 1, Q("-135 deg")))
sketch11.addConstraint(Sketcher.Constraint("DistanceX", 4, 1, 4, 2, Q("3.2 mm")))
sketch11.addConstraint(Sketcher.Constraint("DistanceY", -1, 1, 1, 2, Q("10 mm")))
sketch11.setExpression("Constraints[10]", "Params.sketch11_width")
sketch11.setExpression("Constraints[11]", "Params.sketch11_height")
sketch11.setExpression("Constraints[13]", "Params.sketch11_width2")
pocket6 = body.newObject("PartDesign::Pocket", "Pocket005")
pocket6.Profile = sketch11
pocket6.Type = "ThroughAll"
pocket6.Reversed = True

# Sketch on XY plane
sketch12 = body.newObject("Sketcher::SketchObject", "Sketch011")
sketch12.AttachmentSupport = (doc.getObject("XY_Plane"), [""])
sketch12.MapMode = "FlatFace"
sketch12.AttachmentOffset = App.Placement(Vector(0, 0, 16), App.Rotation())
sketch12.addGeometry(Part.Circle(Vector(35.5, -68, 0), Vector(0, 0, 1), 1.6), False)
sketch12.addGeometry(Part.Circle(Vector(4.5, -68, 0), Vector(0, 0, 1), 1.6), False)
sketch12.addGeometry(Part.Circle(Vector(35.5, -28, 0), Vector(0, 0, 1), 1.6), False)
sketch12.addGeometry(Part.Circle(Vector(4.5, -28, 0), Vector(0, 0, 1), 1.6), False)
sketch12.addConstraint(Sketcher.Constraint("Equal", 0, 1))
sketch12.addConstraint(Sketcher.Constraint("Equal", 1, 2))
sketch12.addConstraint(Sketcher.Constraint("Equal", 2, 3))
sketch12.addConstraint(Sketcher.Constraint("Horizontal", 0, 3, 1, 3))
sketch12.addConstraint(Sketcher.Constraint("Horizontal", 2, 3, 3, 3))
sketch12.addConstraint(Sketcher.Constraint("Vertical", 0, 3, 2, 3))
sketch12.addConstraint(Sketcher.Constraint("Vertical", 1, 3, 3, 3))
sketch12.addConstraint(Sketcher.Constraint("Diameter", 0, Q("3.3 mm")))
sketch12.addConstraint(Sketcher.Constraint("DistanceY", 0, 3, -1, 1, Q("68 mm")))
sketch12.addConstraint(Sketcher.Constraint("DistanceY", 2, 3, -1, 1, Q("28 mm")))
sketch12.addConstraint(Sketcher.Constraint("DistanceX", 1, 3, 0, 3, Q("31 mm")))
sketch12.addConstraint(Sketcher.Constraint("DistanceX", -1, 1, 0, 3, Q("35.5 mm")))
sketch12.setExpression("Constraints[7]", "Params.sketch12_diameter")
pocket7 = body.newObject("PartDesign::Pocket", "Pocket006")
pocket7.Profile = sketch12
pocket7.setExpression("Length", "Params.pocket7_length")
pocket7.Reversed = True

doc.recompute()
